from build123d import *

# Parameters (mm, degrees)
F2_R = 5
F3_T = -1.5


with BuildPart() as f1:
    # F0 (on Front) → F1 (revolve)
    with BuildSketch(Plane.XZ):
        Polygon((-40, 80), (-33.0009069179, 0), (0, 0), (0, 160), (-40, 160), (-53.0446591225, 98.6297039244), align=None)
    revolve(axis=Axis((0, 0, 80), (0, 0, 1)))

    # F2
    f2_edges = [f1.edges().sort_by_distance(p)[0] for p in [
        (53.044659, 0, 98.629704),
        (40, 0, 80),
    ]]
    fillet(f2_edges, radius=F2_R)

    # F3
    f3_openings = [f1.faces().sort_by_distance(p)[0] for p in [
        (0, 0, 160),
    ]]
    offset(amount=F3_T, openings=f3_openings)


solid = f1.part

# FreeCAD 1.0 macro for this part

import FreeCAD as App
import Part
import Sketcher

V = App.Vector
Q = App.Units.Quantity


def edges_at(feature, points):
    """Names of the edges that pass closest to the given points."""
    edges = feature.Shape.Edges
    near = lambda p: min(range(len(edges)), key=lambda i: edges[i].distToShape(Part.Vertex(*p))[0])
    return sorted({f"Edge{near(p) + 1}" for p in points})


def faces_at(feature, points):
    """Names of the faces that lie closest to the given points."""
    faces = feature.Shape.Faces
    near = lambda p: min(range(len(faces)), key=lambda i: faces[i].distToShape(Part.Vertex(*p))[0])
    return sorted({f"Face{near(p) + 1}" for p in points})

doc = App.newDocument("Part")
body = doc.addObject("PartDesign::Body", "Body")

# Sketch on XZ plane
sketch1 = doc.addObject("Sketcher::SketchObject", "Sketch")
body.addObject(sketch1)
sketch1.AttachmentSupport = (doc.XZ_Plane, [""])
sketch1.MapMode = "FlatFace"
sketch1.addGeometry([
    Part.LineSegment(V(-40, 80, 0), V(-33, 0, 0)),  # 0
    Part.LineSegment(V(-33, 0, 0), V(0, 0, 0)),  # 1
    Part.LineSegment(V(0, 0, 0), V(0, 160, 0)),  # 2
    Part.LineSegment(V(0, 160, 0), V(-40, 160, 0)),  # 3
    Part.LineSegment(V(-40, 160, 0), V(-53, 99, 0)),  # 4
    Part.LineSegment(V(-53, 99, 0), V(-40, 80, 0)),  # 5
], False)
sketch1.addConstraint([
    Sketcher.Constraint("Coincident", 0, 2, 1, 1),
    Sketcher.Constraint("Coincident", 1, 2, 2, 1),
    Sketcher.Constraint("Coincident", 2, 2, 3, 1),
    Sketcher.Constraint("Coincident", 3, 2, 4, 1),
    Sketcher.Constraint("Coincident", 4, 2, 5, 1),
    Sketcher.Constraint("Coincident", 5, 2, 0, 1),
    Sketcher.Constraint("Horizontal", 1),
    Sketcher.Constraint("Vertical", 2),
    Sketcher.Constraint("Horizontal", 3),
    Sketcher.Constraint("Coincident", 1, 2, -1, 1),
    Sketcher.Constraint("Vertical", 3, 2, 5, 2),
    Sketcher.Constraint("DistanceX", 3, 2, 3, 1, Q("40 mm")),
    Sketcher.Constraint("DistanceY", 2, 1, 2, 2, Q("160 mm")),
    Sketcher.Constraint("Angle", 0, Q("-85 deg")),
    Sketcher.Constraint("Angle", 4, Q("-102 deg")),
    Sketcher.Constraint("Angle", 5, Q("-55 deg")),
    Sketcher.Constraint("DistanceY", -1, 1, 5, 2, Q("80 mm")),
])
revolution = doc.addObject("PartDesign::Revolution", "Revolution")
body.addObject(revolution)
revolution.Profile = sketch1
revolution.ReferenceAxis = (sketch1, ["V_Axis"])
revolution.Angle = 360
doc.recompute()

fillet = doc.addObject("PartDesign::Fillet", "Fillet")
body.addObject(fillet)
fillet.Base = (revolution, edges_at(revolution, [(53.045, 0, 98.63), (40, 0, 80)]))
fillet.Radius = 5
doc.recompute()

thickness = doc.addObject("PartDesign::Thickness", "Thickness")
body.addObject(thickness)
thickness.Base = (fillet, faces_at(fillet, [(0, 0, 160)]))
thickness.Value = 1.5
thickness.Reversed = True
thickness.Join = "Arc"

doc.recompute()
